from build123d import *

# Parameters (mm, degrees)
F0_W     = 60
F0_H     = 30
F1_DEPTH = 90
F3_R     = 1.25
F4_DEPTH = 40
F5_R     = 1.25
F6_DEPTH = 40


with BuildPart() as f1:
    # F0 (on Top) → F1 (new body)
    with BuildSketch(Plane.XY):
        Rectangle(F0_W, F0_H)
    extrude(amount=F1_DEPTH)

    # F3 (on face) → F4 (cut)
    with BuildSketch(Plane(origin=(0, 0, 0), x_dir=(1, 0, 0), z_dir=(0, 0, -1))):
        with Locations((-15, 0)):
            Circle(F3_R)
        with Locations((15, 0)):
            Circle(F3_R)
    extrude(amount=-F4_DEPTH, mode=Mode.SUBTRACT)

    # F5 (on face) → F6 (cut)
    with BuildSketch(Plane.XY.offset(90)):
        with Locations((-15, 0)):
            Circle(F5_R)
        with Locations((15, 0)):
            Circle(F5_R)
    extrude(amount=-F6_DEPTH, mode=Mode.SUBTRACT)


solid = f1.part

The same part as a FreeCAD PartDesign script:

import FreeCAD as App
import Part
import Sketcher

V = App.Vector
Q = App.Units.Quantity

doc = App.newDocument("Part")
body = doc.addObject("PartDesign::Body", "Body")

# Sketch on XY plane
sketch1 = doc.addObject("Sketcher::SketchObject", "Sketch")
body.addObject(sketch1)
sketch1.AttachmentSupport = (doc.XY_Plane, [""])
sketch1.MapMode = "FlatFace"
sketch1.addGeometry(Part.LineSegment(V(-30, 15, 0), V(-30, -15, 0)), False)
sketch1.addGeometry(Part.LineSegment(V(-30, -15, 0), V(30, -15, 0)), False)
sketch1.addGeometry(Part.LineSegment(V(30, -15, 0), V(30, 15, 0)), False)
sketch1.addGeometry(Part.LineSegment(V(30, 15, 0), V(-30, 15, 0)), False)
sketch1.addConstraint(Sketcher.Constraint("Coincident", 0, 2, 1, 1))
sketch1.addConstraint(Sketcher.Constraint("Coincident", 1, 2, 2, 1))
sketch1.addConstraint(Sketcher.Constraint("Coincident", 2, 2, 3, 1))
sketch1.addConstraint(Sketcher.Constraint("Coincident", 3, 2, 0, 1))
sketch1.addConstraint(Sketcher.Constraint("Vertical", 0))
sketch1.addConstraint(Sketcher.Constraint("Horizontal", 1))
sketch1.addConstraint(Sketcher.Constraint("Vertical", 2))
sketch1.addConstraint(Sketcher.Constraint("Horizontal", 3))
sketch1.addConstraint(Sketcher.Constraint("Symmetric", 0, 2, 2, 2, -1, 1))
sketch1.addConstraint(Sketcher.Constraint("DistanceX", 1, 1, 1, 2, Q("60 mm")))
sketch1.addConstraint(Sketcher.Constraint("DistanceY", 0, 2, 0, 1, Q("30 mm")))
pad1 = doc.addObject("PartDesign::Pad", "Pad")
body.addObject(pad1)
pad1.Profile = sketch1
pad1.Length = 90

# Sketch on XY plane
sketch2 = doc.addObject("Sketcher::SketchObject", "Sketch001")
body.addObject(sketch2)
sketch2.AttachmentSupport = (doc.XY_Plane, [""])
sketch2.MapMode = "FlatFace"
sketch2.addGeometry(Part.Circle(V(-15, 0, 0), V(0, 0, 1), 1.2), False)
sketch2.addGeometry(Part.Circle(V(15, 0, 0), V(0, 0, 1), 1.2), False)
sketch2.addConstraint(Sketcher.Constraint("Equal", 0, 1))
sketch2.addConstraint(Sketcher.Constraint("Symmetric", 0, 3, 1, 3, -1, 1))
sketch2.addConstraint(Sketcher.Constraint("PointOnObject", 0, 3, -1))
sketch2.addConstraint(Sketcher.Constraint("Diameter", 0, Q("2.5 mm")))
sketch2.addConstraint(Sketcher.Constraint("DistanceX", 0, 3, -1, 1, Q("15 mm")))
pocket1 = doc.addObject("PartDesign::Pocket", "Pocket")
body.addObject(pocket1)
pocket1.Profile = sketch2
pocket1.Length = 40
pocket1.Reversed = True

# Sketch on XY plane
sketch3 = doc.addObject("Sketcher::SketchObject", "Sketch002")
body.addObject(sketch3)
sketch3.AttachmentSupport = (doc.XY_Plane, [""])
sketch3.MapMode = "FlatFace"
sketch3.AttachmentOffset = App.Placement(V(0, 0, 90), App.Rotation())
sketch3.addGeometry(Part.Circle(V(-15, 0, 0), V(0, 0, 1), 1.2), False)
sketch3.addGeometry(Part.Circle(V(15, 0, 0), V(0, 0, 1), 1.2), False)
sketch3.addConstraint(Sketcher.Constraint("Equal", 0, 1))
sketch3.addConstraint(Sketcher.Constraint("Symmetric", 0, 3, 1, 3, -1, 1))
sketch3.addConstraint(Sketcher.Constraint("PointOnObject", 0, 3, -1))
sketch3.addConstraint(Sketcher.Constraint("Diameter", 0, Q("2.5 mm")))
sketch3.addConstraint(Sketcher.Constraint("DistanceX", 0, 3, -1, 1, Q("15 mm")))
pocket2 = doc.addObject("PartDesign::Pocket", "Pocket001")
body.addObject(pocket2)
pocket2.Profile = sketch3
pocket2.Length = 40

doc.recompute()
